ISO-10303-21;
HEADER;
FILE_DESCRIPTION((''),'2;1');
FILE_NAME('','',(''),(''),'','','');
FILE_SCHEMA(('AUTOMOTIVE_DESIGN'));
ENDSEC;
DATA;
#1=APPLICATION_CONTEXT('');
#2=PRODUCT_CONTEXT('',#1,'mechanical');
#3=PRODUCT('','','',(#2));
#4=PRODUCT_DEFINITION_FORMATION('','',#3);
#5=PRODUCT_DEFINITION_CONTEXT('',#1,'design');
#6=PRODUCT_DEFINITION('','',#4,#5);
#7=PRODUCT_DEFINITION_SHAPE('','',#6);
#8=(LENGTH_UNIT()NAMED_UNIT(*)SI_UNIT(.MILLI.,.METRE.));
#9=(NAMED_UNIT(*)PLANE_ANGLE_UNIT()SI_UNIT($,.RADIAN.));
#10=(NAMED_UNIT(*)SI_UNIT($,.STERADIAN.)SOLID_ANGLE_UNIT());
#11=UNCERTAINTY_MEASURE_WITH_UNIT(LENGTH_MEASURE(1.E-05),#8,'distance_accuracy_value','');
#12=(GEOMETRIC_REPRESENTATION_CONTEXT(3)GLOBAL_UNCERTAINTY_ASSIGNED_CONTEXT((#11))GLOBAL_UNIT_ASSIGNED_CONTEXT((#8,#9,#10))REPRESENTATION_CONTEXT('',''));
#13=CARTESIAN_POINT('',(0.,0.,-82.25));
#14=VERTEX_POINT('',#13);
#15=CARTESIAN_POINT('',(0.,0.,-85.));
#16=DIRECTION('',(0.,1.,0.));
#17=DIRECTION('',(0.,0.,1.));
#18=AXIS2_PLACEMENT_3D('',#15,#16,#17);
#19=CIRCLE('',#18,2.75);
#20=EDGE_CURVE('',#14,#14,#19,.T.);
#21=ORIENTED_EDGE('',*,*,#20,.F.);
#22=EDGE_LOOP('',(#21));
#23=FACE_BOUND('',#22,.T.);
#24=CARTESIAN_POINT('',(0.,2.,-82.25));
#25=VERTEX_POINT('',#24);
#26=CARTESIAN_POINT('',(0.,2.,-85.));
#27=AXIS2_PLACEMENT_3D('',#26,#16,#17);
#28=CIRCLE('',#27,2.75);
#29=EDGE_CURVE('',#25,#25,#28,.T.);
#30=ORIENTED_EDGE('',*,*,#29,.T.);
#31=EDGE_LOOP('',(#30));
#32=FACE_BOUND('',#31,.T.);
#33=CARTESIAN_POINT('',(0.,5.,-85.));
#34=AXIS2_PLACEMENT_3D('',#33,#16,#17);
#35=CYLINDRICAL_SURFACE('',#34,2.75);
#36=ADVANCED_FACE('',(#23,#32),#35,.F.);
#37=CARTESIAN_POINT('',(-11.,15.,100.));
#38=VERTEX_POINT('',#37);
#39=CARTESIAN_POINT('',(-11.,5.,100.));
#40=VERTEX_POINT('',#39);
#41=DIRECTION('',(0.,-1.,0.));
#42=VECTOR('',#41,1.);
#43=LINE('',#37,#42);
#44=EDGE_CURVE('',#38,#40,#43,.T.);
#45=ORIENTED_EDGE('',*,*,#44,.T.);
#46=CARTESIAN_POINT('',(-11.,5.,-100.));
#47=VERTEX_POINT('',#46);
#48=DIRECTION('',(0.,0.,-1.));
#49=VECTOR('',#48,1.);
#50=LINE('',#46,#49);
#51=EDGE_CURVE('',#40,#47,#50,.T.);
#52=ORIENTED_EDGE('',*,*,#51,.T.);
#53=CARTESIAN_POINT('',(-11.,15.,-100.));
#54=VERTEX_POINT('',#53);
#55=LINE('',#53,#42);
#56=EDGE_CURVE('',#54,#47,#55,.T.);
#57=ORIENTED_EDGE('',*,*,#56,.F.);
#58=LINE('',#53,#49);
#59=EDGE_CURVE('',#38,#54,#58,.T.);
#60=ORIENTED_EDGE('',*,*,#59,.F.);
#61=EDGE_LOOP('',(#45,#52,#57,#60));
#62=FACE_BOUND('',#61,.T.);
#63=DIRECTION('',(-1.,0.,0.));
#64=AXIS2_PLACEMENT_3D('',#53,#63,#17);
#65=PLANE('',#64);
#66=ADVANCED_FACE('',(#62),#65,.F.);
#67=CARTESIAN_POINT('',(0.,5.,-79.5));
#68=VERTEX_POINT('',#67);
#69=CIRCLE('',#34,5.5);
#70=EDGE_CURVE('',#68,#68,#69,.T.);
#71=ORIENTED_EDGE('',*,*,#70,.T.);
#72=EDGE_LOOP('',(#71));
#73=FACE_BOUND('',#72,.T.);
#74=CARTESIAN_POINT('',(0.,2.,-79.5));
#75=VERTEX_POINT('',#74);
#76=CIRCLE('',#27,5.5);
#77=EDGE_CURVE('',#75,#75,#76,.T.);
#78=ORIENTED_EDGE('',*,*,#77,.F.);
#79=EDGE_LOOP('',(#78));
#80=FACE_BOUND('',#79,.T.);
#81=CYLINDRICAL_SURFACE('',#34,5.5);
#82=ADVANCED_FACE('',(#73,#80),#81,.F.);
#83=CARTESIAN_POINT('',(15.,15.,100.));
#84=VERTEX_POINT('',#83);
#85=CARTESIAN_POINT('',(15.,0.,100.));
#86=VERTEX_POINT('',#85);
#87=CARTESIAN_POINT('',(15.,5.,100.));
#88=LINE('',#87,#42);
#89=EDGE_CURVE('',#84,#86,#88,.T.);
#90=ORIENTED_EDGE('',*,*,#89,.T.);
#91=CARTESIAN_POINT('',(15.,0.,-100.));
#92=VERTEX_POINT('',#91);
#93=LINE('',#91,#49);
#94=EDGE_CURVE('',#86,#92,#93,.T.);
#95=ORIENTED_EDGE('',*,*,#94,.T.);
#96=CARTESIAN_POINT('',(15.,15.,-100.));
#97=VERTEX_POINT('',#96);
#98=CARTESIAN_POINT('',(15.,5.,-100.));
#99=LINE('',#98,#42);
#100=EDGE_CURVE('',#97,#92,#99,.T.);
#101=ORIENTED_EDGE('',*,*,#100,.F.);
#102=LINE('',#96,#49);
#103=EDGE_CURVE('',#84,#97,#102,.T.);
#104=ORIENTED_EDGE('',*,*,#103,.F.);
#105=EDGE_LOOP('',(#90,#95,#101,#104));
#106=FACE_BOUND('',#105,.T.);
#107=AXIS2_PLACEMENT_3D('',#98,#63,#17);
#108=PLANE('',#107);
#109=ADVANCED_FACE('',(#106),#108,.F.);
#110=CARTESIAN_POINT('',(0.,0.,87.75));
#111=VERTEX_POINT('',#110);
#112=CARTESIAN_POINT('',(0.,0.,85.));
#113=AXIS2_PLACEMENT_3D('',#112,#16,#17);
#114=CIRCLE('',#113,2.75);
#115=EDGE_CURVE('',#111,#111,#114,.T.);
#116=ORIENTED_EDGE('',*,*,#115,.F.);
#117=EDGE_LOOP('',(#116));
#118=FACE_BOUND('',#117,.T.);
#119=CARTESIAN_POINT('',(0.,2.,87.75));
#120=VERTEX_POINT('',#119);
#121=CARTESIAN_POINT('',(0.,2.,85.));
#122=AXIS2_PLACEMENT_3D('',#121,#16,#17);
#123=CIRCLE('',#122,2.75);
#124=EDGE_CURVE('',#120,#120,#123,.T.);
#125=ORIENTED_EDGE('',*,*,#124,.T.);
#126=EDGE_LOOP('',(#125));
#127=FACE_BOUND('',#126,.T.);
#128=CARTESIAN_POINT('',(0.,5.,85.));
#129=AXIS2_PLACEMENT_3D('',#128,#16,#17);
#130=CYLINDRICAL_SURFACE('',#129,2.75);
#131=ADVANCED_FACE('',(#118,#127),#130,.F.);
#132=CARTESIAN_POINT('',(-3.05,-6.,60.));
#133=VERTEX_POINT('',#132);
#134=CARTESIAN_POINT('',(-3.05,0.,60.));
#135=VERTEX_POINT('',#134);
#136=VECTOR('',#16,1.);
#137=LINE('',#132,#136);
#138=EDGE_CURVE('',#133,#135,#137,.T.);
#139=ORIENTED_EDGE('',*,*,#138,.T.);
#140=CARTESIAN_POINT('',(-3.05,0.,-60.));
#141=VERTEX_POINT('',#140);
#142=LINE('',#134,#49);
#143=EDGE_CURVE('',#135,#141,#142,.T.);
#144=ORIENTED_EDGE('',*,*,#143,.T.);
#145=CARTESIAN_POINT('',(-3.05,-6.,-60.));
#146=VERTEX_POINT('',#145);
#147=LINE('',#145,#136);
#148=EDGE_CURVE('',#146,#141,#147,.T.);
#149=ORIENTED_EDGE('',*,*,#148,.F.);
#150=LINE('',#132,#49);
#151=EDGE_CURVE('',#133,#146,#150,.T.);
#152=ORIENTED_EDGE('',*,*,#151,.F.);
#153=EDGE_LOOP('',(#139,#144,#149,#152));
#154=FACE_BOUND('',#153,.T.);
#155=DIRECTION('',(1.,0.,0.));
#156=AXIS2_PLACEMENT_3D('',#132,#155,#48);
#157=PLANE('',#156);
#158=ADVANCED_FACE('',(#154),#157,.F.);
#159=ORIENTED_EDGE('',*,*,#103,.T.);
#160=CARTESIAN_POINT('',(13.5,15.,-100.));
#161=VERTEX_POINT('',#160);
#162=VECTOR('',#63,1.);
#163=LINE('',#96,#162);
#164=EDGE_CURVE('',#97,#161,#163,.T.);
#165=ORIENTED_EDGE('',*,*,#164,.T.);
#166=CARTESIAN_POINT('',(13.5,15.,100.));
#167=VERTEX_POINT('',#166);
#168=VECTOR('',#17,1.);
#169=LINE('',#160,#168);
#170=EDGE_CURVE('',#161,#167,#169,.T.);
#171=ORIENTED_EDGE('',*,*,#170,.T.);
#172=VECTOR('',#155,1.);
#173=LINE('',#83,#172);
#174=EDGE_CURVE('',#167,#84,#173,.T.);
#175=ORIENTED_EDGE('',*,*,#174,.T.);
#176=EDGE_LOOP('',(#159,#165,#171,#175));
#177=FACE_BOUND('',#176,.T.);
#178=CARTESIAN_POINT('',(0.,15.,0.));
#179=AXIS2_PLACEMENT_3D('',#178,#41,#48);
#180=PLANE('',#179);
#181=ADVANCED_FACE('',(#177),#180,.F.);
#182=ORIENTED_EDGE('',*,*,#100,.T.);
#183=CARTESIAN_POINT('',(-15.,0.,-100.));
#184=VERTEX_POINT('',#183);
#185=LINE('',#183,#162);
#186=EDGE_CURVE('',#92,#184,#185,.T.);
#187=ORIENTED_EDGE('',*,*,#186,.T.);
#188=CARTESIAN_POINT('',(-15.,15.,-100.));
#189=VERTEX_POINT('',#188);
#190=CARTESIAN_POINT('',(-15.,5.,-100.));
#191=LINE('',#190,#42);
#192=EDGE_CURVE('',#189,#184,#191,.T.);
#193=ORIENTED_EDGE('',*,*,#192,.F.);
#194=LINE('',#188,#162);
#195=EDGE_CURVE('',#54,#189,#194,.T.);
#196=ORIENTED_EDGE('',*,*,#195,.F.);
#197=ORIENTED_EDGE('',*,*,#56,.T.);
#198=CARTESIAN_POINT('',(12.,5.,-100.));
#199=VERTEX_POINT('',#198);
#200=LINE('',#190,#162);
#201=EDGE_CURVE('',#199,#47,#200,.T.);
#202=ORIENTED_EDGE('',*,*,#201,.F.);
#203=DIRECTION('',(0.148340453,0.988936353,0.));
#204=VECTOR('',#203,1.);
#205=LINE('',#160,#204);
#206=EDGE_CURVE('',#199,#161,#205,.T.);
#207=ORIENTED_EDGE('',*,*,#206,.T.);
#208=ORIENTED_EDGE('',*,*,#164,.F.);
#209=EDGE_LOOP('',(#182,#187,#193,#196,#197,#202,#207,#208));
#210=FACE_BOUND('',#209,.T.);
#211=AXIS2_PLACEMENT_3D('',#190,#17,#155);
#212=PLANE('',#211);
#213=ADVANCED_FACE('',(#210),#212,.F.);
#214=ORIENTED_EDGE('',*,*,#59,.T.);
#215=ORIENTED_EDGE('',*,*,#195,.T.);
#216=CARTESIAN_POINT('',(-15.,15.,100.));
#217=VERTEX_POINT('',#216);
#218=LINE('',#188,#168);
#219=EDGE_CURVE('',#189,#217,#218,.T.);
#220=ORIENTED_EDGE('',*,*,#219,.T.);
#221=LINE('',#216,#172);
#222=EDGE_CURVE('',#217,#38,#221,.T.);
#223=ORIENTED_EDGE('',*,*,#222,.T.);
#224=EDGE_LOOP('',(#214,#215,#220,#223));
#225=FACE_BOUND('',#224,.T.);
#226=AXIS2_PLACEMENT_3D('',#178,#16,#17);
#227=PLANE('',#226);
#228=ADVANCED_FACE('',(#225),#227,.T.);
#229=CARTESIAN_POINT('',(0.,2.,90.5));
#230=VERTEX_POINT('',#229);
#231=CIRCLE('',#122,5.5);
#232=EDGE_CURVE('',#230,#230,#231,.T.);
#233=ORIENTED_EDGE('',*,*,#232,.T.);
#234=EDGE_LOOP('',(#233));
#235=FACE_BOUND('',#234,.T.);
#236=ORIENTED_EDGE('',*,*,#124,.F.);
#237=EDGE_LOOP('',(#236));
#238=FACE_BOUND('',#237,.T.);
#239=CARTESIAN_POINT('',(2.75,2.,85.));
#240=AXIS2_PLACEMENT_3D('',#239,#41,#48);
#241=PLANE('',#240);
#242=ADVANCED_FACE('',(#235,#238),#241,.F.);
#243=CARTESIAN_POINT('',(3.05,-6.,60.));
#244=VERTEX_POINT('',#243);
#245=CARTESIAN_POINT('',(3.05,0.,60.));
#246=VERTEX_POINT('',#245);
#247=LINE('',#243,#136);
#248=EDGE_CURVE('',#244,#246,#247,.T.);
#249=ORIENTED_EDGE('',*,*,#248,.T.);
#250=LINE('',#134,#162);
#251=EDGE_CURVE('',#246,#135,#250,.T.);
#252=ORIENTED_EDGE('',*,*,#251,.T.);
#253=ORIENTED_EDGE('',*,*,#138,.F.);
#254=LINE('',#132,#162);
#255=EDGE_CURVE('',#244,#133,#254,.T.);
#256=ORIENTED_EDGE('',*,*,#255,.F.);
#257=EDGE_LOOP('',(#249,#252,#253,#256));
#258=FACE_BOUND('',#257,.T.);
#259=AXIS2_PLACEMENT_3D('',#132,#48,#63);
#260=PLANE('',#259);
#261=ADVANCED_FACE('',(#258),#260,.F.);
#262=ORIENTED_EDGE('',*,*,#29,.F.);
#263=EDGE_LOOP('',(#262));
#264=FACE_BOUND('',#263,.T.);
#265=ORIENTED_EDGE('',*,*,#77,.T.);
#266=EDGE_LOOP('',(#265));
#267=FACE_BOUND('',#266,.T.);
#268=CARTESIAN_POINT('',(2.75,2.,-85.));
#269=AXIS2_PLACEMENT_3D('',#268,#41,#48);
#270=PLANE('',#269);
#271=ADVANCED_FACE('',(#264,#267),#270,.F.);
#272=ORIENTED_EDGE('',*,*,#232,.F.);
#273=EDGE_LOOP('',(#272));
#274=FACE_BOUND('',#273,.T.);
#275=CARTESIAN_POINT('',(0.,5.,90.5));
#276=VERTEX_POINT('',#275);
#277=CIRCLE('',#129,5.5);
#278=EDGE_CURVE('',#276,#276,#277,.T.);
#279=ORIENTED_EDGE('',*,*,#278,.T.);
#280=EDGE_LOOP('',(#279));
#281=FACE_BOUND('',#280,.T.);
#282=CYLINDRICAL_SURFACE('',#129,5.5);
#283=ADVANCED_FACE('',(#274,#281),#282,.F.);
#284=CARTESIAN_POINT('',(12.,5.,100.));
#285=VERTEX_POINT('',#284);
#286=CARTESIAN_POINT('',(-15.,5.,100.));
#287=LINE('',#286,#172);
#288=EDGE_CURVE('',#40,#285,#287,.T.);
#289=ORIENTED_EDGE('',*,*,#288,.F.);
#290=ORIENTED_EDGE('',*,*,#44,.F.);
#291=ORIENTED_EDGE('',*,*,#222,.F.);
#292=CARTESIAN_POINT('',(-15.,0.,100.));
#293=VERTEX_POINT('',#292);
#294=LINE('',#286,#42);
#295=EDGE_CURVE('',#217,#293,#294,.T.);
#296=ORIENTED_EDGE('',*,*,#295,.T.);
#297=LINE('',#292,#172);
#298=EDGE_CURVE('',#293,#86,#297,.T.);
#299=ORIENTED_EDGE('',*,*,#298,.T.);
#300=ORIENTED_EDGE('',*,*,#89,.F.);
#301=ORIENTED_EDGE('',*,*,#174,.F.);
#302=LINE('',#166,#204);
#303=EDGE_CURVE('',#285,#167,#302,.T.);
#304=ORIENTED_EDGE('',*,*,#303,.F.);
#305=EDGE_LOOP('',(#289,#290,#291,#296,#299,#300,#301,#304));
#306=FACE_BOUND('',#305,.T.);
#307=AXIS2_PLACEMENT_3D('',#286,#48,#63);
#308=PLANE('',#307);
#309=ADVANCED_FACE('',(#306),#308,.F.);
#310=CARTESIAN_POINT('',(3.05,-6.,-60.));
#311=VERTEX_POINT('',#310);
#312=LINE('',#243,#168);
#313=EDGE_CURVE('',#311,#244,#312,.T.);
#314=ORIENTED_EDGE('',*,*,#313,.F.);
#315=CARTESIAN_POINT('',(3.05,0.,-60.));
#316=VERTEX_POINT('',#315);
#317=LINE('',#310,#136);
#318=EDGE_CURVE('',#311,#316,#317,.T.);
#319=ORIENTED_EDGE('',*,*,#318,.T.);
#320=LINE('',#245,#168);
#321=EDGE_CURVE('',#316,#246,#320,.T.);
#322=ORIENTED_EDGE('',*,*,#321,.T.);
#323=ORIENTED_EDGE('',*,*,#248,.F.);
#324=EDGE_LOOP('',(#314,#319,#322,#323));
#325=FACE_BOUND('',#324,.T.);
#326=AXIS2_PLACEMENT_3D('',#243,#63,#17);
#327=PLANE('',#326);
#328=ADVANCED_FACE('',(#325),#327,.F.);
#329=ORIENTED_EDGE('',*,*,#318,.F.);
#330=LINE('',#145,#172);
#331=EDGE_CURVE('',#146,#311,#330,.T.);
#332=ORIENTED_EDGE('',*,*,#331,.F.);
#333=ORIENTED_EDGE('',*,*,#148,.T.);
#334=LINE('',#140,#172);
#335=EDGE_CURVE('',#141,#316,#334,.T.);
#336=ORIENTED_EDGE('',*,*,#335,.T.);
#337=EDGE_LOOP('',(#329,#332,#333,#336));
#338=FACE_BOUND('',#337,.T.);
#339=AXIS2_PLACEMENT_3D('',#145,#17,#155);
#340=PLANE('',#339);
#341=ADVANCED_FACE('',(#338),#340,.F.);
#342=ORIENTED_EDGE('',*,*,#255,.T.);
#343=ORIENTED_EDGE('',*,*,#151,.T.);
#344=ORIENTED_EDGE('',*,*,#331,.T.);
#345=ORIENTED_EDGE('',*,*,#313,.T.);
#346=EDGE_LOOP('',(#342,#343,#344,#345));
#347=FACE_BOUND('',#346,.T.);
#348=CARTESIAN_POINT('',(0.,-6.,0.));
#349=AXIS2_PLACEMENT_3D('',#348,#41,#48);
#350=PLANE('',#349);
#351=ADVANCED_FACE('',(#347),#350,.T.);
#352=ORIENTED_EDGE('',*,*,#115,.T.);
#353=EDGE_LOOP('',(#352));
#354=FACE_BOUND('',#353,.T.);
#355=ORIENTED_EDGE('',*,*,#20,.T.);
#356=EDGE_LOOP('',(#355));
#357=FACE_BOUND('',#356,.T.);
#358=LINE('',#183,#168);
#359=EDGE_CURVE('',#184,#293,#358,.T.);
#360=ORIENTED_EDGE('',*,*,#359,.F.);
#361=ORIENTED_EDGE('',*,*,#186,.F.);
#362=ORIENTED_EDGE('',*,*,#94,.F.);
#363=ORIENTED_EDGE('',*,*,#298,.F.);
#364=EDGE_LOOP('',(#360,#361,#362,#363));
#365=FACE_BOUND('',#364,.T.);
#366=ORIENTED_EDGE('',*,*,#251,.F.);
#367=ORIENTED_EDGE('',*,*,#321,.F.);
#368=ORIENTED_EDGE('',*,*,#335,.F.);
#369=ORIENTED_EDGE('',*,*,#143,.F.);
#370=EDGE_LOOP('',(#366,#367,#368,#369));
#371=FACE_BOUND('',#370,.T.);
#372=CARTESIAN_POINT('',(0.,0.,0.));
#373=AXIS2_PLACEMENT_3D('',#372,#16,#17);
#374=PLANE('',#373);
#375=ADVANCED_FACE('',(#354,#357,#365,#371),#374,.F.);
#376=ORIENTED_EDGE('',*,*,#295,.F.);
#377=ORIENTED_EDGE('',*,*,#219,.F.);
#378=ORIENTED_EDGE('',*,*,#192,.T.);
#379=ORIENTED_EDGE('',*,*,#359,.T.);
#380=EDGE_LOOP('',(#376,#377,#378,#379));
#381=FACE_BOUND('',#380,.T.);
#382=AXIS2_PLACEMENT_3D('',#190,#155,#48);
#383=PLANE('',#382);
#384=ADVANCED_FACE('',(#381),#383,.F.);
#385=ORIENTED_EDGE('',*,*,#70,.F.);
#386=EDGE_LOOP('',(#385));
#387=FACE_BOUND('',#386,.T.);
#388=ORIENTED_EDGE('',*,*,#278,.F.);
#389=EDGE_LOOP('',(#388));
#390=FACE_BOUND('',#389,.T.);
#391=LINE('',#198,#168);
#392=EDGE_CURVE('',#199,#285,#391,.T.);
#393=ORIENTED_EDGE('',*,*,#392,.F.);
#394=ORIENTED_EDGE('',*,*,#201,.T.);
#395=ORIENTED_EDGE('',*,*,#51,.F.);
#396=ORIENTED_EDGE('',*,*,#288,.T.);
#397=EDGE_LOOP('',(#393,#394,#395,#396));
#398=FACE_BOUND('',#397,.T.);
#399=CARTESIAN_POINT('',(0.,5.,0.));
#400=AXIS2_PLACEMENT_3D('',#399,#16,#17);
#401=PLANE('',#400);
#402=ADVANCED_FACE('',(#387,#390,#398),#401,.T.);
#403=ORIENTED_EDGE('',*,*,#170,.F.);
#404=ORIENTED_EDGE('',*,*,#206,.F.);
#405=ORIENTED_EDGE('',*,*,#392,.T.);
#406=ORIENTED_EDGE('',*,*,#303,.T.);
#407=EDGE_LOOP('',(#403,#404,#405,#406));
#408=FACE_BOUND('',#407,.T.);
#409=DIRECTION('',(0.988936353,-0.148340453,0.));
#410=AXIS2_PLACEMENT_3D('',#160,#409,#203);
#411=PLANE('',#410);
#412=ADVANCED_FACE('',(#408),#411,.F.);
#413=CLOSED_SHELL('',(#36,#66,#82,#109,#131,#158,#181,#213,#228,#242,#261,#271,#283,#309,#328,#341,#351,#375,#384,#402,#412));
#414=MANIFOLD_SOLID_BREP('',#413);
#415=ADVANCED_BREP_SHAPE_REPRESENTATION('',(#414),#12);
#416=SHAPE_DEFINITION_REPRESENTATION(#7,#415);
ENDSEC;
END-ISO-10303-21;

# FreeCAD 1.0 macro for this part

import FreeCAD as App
import Part
import Sketcher

V = App.Vector

doc = App.newDocument("Part")
body = doc.addObject("PartDesign::Body", "Body")

# Sketch on XZ plane
sketch1 = doc.addObject("Sketcher::SketchObject", "Sketch")
body.addObject(sketch1)
sketch1.AttachmentSupport = (doc.XZ_Plane, [""])
sketch1.MapMode = "FlatFace"
sketch1.addGeometry([
    Part.LineSegment(V(-15, -100, 0), V(-15, 100, 0)),
    Part.LineSegment(V(-15, 100, 0), V(15, 100, 0)),
    Part.LineSegment(V(15, 100, 0), V(15, -100, 0)),
    Part.LineSegment(V(15, -100, 0), V(-15, -100, 0)),
], False)
sketch1.addConstraint([
    Sketcher.Constraint("Coincident", 0, 2, 1, 1),
    Sketcher.Constraint("Coincident", 1, 2, 2, 1),
    Sketcher.Constraint("Coincident", 2, 2, 3, 1),
    Sketcher.Constraint("Coincident", 3, 2, 0, 1),
    Sketcher.Constraint("Vertical", 0),
    Sketcher.Constraint("Horizontal", 1),
    Sketcher.Constraint("Vertical", 2),
    Sketcher.Constraint("Horizontal", 3),
    Sketcher.Constraint("Symmetric", 0, 2, 2, 2, -1, 1),
    Sketcher.Constraint("DistanceX", 1, 1, 1, 2, 30.0),
    Sketcher.Constraint("DistanceY", 0, 1, 0, 2, 200.0),
])
pad1 = doc.addObject("PartDesign::Pad", "Pad")
body.addObject(pad1)
pad1.Profile = sketch1
pad1.Length = 5
pad1.Reversed = True

# Sketch on XZ plane
sketch2 = doc.addObject("Sketcher::SketchObject", "Sketch001")
body.addObject(sketch2)
sketch2.AttachmentSupport = (doc.XZ_Plane, [""])
sketch2.MapMode = "FlatFace"
sketch2.AttachmentOffset = App.Placement(V(0, 0, -5), App.Rotation())
sketch2.addGeometry([
    Part.LineSegment(V(-15, -100, 0), V(-15, 100, 0)),  # 0
    Part.LineSegment(V(-15, 100, 0), V(-11, 100, 0)),  # 1
    Part.LineSegment(V(-11, 100, 0), V(-11, -100, 0)),  # 2
    Part.LineSegment(V(-11, -100, 0), V(-15, -100, 0)),  # 3
    Part.LineSegment(V(12, -100, 0), V(12, 100, 0)),  # 4
    Part.LineSegment(V(12, 100, 0), V(15, 100, 0)),  # 5
    Part.LineSegment(V(15, 100, 0), V(15, -100, 0)),  # 6
    Part.LineSegment(V(15, -100, 0), V(12, -100, 0)),  # 7
], False)
sketch2.addConstraint([
    Sketcher.Constraint("Coincident", 0, 2, 1, 1),
    Sketcher.Constraint("Coincident", 1, 2, 2, 1),
    Sketcher.Constraint("Coincident", 2, 2, 3, 1),
    Sketcher.Constraint("Coincident", 3, 2, 0, 1),
    Sketcher.Constraint("Coincident", 4, 2, 5, 1),
    Sketcher.Constraint("Coincident", 5, 2, 6, 1),
    Sketcher.Constraint("Coincident", 6, 2, 7, 1),
    Sketcher.Constraint("Coincident", 7, 2, 4, 1),
    Sketcher.Constraint("Vertical", 0),
    Sketcher.Constraint("Horizontal", 1),
    Sketcher.Constraint("Vertical", 2),
    Sketcher.Constraint("Horizontal", 3),
    Sketcher.Constraint("Vertical", 4),
    Sketcher.Constraint("Horizontal", 5),
    Sketcher.Constraint("Vertical", 6),
    Sketcher.Constraint("Horizontal", 7),
    Sketcher.Constraint("Symmetric", 3, 2, 5, 2, -1, 1),
    Sketcher.Constraint("Horizontal", 1, 2, 4, 2),
    Sketcher.Constraint("Horizontal", 3, 2, 6, 2),
    Sketcher.Constraint("DistanceX", 1, 1, 1, 2, 4.0),
    Sketcher.Constraint("DistanceX", 5, 1, 5, 2, 3.0),
    Sketcher.Constraint("DistanceY", 0, 1, 0, 2, 200.0),
    Sketcher.Constraint("DistanceX", 0, 2, -1, 1, 15.0),
])
pad2 = doc.addObject("PartDesign::Pad", "Pad001")
body.addObject(pad2)
pad2.Profile = sketch2
pad2.Length = 10
pad2.Reversed = True

# Sketch on XY plane
sketch3 = doc.addObject("Sketcher::SketchObject", "Sketch002")
body.addObject(sketch3)
sketch3.AttachmentSupport = (doc.XY_Plane, [""])
sketch3.MapMode = "FlatFace"
sketch3.AttachmentOffset = App.Placement(V(0, 0, 100), App.Rotation())
sketch3.addGeometry([
    Part.LineSegment(V(12, 15, 0), V(12, 5, 0)),
    Part.LineSegment(V(12, 5, 0), V(13.5, 15, 0)),
    Part.LineSegment(V(13.5, 15, 0), V(12, 15, 0)),
], False)
sketch3.addConstraint([
    Sketcher.Constraint("Coincident", 0, 2, 1, 1),
    Sketcher.Constraint("Coincident", 1, 2, 2, 1),
    Sketcher.Constraint("Coincident", 2, 2, 0, 1),
    Sketcher.Constraint("Vertical", 0),
    Sketcher.Constraint("Horizontal", 2),
    Sketcher.Constraint("DistanceY", 0, 2, 0, 1, 10.0),
    Sketcher.Constraint("DistanceX", 2, 2, 2, 1, 1.5),
    Sketcher.Constraint("DistanceX", -1, 1, 0, 2, 12.0),
    Sketcher.Constraint("DistanceY", -1, 1, 0, 2, 5.0),
])
pocket1 = doc.addObject("PartDesign::Pocket", "Pocket")
body.addObject(pocket1)
pocket1.Profile = sketch3
pocket1.Type = "ThroughAll"

# Sketch on XZ plane
sketch4 = doc.addObject("Sketcher::SketchObject", "Sketch003")
body.addObject(sketch4)
sketch4.AttachmentSupport = (doc.XZ_Plane, [""])
sketch4.MapMode = "FlatFace"
sketch4.AttachmentOffset = App.Placement(V(0, 0, -5), App.Rotation())
sketch4.addGeometry([
    Part.Circle(V(0, 85, 0), V(0, 0, 1), 2.75),
    Part.Circle(V(0, -85, 0), V(0, 0, 1), 2.75),
], False)
sketch4.addConstraint([
    Sketcher.Constraint("Equal", 0, 1),
    Sketcher.Constraint("Symmetric", 0, 3, 1, 3, -1, 1),
    Sketcher.Constraint("PointOnObject", 0, 3, -2),
    Sketcher.Constraint("Diameter", 0, 5.5),
    Sketcher.Constraint("DistanceY", -1, 1, 0, 3, 85.0),
])
doc.recompute()
hole = doc.addObject("PartDesign::Hole", "Hole")
body.addObject(hole)
hole.Profile = sketch4
hole.ThreadType = "None"
hole.Diameter = 5.5
hole.DepthType = "Dimension"
hole.Depth = 30
hole.DrillPoint = "Angled"
hole.DrillPointAngle = 118
hole.HoleCutType = "Counterbore"
hole.HoleCutDiameter = 11
hole.HoleCutDepth = 3
hole.Reversed = True

# Sketch on XZ plane
sketch5 = doc.addObject("Sketcher::SketchObject", "Sketch004")
body.addObject(sketch5)
sketch5.AttachmentSupport = (doc.XZ_Plane, [""])
sketch5.MapMode = "FlatFace"
sketch5.addGeometry([
    Part.LineSegment(V(-3.05, 60, 0), V(-3.05, -60, 0)),
    Part.LineSegment(V(-3.05, -60, 0), V(3.05, -60, 0)),
    Part.LineSegment(V(3.05, -60, 0), V(3.05, 60, 0)),
    Part.LineSegment(V(3.05, 60, 0), V(-3.05, 60, 0)),
], False)
sketch5.addConstraint([
    Sketcher.Constraint("Coincident", 0, 2, 1, 1),
    Sketcher.Constraint("Coincident", 1, 2, 2, 1),
    Sketcher.Constraint("Coincident", 2, 2, 3, 1),
    Sketcher.Constraint("Coincident", 3, 2, 0, 1),
    Sketcher.Constraint("Vertical", 0),
    Sketcher.Constraint("Horizontal", 1),
    Sketcher.Constraint("Vertical", 2),
    Sketcher.Constraint("Horizontal", 3),
    Sketcher.Constraint("Symmetric", 0, 2, 2, 2, -1, 1),
    Sketcher.Constraint("DistanceY", 0, 2, 0, 1, 120.0),
    Sketcher.Constraint("DistanceX", 1, 1, 1, 2, 6.1),
])
pad3 = doc.addObject("PartDesign::Pad", "Pad002")
body.addObject(pad3)
pad3.Profile = sketch5
pad3.Length = 6

doc.recompute()
